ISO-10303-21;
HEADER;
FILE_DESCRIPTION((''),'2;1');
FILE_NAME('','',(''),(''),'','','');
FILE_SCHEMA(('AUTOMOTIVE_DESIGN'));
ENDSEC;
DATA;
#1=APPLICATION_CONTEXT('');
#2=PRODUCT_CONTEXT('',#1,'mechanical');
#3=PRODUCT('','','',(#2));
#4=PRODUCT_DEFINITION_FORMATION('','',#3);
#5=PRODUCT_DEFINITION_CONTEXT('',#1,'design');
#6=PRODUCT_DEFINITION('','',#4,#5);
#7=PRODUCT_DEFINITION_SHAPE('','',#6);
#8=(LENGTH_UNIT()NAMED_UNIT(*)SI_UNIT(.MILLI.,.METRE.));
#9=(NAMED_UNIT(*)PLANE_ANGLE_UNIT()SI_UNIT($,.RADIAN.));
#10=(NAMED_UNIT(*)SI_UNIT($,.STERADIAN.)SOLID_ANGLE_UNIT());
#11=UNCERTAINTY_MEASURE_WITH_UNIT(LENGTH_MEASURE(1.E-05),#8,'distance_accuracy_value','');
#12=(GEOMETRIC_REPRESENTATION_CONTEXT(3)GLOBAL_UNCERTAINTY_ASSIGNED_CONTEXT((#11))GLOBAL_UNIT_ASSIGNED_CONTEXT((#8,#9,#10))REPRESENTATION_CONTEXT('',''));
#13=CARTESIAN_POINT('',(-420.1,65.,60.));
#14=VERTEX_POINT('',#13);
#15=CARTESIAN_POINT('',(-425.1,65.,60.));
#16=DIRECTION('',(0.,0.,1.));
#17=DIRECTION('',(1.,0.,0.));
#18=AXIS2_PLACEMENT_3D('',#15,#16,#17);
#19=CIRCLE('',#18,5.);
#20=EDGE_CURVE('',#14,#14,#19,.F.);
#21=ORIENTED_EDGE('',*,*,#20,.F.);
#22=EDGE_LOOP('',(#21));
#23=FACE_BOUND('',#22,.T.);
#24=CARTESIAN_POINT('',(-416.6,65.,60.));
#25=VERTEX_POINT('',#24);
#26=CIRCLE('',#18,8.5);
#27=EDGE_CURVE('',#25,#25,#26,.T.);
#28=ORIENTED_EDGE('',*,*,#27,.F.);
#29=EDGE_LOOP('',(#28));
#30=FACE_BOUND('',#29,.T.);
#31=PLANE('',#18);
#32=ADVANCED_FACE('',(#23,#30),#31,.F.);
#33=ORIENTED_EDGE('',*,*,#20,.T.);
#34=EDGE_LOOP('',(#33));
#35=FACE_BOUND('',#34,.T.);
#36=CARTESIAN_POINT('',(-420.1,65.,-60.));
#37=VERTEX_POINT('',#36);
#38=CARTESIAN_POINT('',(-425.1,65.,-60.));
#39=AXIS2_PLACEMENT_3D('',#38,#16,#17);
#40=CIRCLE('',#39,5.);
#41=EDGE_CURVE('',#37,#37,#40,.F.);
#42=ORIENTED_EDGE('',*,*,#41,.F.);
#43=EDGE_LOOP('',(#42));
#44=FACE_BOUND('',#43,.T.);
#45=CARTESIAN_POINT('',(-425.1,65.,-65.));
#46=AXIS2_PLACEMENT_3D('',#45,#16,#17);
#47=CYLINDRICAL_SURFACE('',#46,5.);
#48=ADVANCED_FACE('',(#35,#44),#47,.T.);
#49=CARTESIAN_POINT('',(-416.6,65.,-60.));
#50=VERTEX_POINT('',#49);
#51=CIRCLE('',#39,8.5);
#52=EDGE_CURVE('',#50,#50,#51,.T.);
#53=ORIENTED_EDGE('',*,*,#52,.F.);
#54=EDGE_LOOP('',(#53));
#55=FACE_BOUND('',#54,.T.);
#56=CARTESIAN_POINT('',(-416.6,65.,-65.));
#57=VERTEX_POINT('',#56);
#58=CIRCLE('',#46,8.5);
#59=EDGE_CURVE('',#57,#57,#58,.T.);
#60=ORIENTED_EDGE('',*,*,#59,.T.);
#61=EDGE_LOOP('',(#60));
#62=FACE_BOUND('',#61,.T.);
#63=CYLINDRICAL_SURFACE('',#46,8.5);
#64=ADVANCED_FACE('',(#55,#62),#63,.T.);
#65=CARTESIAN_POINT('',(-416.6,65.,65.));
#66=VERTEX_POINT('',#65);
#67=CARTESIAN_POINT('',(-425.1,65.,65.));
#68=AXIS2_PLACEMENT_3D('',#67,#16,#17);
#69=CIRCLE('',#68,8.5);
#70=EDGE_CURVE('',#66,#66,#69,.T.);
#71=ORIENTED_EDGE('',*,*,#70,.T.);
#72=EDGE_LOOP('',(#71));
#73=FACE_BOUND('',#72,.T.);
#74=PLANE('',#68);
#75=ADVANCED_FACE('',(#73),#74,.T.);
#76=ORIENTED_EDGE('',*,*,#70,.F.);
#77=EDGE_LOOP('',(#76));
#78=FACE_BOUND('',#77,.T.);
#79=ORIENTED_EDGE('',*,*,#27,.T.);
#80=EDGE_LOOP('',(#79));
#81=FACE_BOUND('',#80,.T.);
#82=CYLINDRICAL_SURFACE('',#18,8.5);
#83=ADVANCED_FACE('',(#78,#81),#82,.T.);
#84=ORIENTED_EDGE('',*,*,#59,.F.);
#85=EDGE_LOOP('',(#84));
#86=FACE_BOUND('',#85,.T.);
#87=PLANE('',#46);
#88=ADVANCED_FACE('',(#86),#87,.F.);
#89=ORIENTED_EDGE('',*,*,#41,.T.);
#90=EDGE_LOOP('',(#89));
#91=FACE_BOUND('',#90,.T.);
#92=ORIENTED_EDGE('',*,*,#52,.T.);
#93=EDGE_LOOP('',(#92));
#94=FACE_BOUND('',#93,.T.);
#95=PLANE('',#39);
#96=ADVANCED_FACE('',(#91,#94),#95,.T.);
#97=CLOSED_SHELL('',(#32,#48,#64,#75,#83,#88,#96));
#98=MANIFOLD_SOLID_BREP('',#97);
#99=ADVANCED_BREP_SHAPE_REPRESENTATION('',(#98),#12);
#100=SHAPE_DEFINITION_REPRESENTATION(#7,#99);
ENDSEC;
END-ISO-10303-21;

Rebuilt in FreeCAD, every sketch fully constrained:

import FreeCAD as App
import Part
import Sketcher

V = App.Vector
Q = App.Units.Quantity

doc = App.newDocument("Part")
body = doc.addObject("PartDesign::Body", "Body")

# Sketch on XY plane
sketch1 = doc.addObject("Sketcher::SketchObject", "Sketch")
body.addObject(sketch1)
sketch1.AttachmentSupport = (doc.XY_Plane, [""])
sketch1.MapMode = "FlatFace"
sketch1.AttachmentOffset = App.Placement(V(0, 0, -65), App.Rotation())
sketch1.addGeometry(Part.Circle(V(-425.1, 65, 0), V(0, 0, 1), 5), False)
sketch1.addConstraint([
    Sketcher.Constraint("Diameter", 0, Q("10 mm")),
    Sketcher.Constraint("DistanceY", -1, 1, 0, 3, Q("65 mm")),
    Sketcher.Constraint("DistanceX", 0, 3, -1, 1, Q("425.1 mm")),
])

# Sketch on XZ plane
sketch2 = doc.addObject("Sketcher::SketchObject", "Sketch001")
body.addObject(sketch2)
sketch2.AttachmentSupport = (doc.XZ_Plane, [""])
sketch2.MapMode = "FlatFace"
sketch2.AttachmentOffset = App.Placement(V(0, 0, -65), App.Rotation())
sketch2.addGeometry(Part.LineSegment(V(-425.1, -65, 0), V(-425.1, 65, 0)), False)
sketch2.addConstraint([
    Sketcher.Constraint("Vertical", 0),
    Sketcher.Constraint("DistanceY", 0, 1, 0, 2, Q("130 mm")),
    Sketcher.Constraint("DistanceY", 0, 1, -1, 1, Q("65 mm")),
    Sketcher.Constraint("DistanceX", 0, 1, -1, 1, Q("425.1 mm")),
])
doc.recompute()

additivepipe = doc.addObject("PartDesign::AdditivePipe", "AdditivePipe")
body.addObject(additivepipe)
additivepipe.Profile = sketch1
additivepipe.Spine = (sketch2, ["Edge1"])

# Sketch on XY plane
sketch3 = doc.addObject("Sketcher::SketchObject", "Sketch002")
body.addObject(sketch3)
sketch3.AttachmentSupport = (doc.XY_Plane, [""])
sketch3.MapMode = "FlatFace"
sketch3.AttachmentOffset = App.Placement(V(0, 0, 60), App.Rotation())
sketch3.addGeometry(Part.Circle(V(-425.1, 65, 0), V(0, 0, 1), 8.5), False)
sketch3.addConstraint([
    Sketcher.Constraint("Diameter", 0, Q("17 mm")),
    Sketcher.Constraint("DistanceY", -1, 1, 0, 3, Q("65 mm")),
    Sketcher.Constraint("DistanceX", 0, 3, -1, 1, Q("425.1 mm")),
])

# Sketch on XZ plane
sketch4 = doc.addObject("Sketcher::SketchObject", "Sketch003")
body.addObject(sketch4)
sketch4.AttachmentSupport = (doc.XZ_Plane, [""])
sketch4.MapMode = "FlatFace"
sketch4.AttachmentOffset = App.Placement(V(0, 0, -65), App.Rotation())
sketch4.addGeometry(Part.LineSegment(V(-425.1, 60, 0), V(-425.1, 65, 0)), False)
sketch4.addConstraint([
    Sketcher.Constraint("Vertical", 0),
    Sketcher.Constraint("DistanceY", 0, 1, 0, 2, Q("5 mm")),
    Sketcher.Constraint("DistanceY", -1, 1, 0, 1, Q("60 mm")),
    Sketcher.Constraint("DistanceX", 0, 1, -1, 1, Q("425.1 mm")),
])
doc.recompute()

additivepipe2 = doc.addObject("PartDesign::AdditivePipe", "AdditivePipe001")
body.addObject(additivepipe2)
additivepipe2.Profile = sketch3
additivepipe2.Spine = (sketch4, ["Edge1"])

# Sketch on XY plane
sketch5 = doc.addObject("Sketcher::SketchObject", "Sketch004")
body.addObject(sketch5)
sketch5.AttachmentSupport = (doc.XY_Plane, [""])
sketch5.MapMode = "FlatFace"
sketch5.AttachmentOffset = App.Placement(V(0, 0, -65), App.Rotation())
sketch5.addGeometry(Part.Circle(V(-425.1, 65, 0), V(0, 0, 1), 8.5), False)
sketch5.addConstraint([
    Sketcher.Constraint("Diameter", 0, Q("17 mm")),
    Sketcher.Constraint("DistanceY", -1, 1, 0, 3, Q("65 mm")),
    Sketcher.Constraint("DistanceX", 0, 3, -1, 1, Q("425.1 mm")),
])

# Sketch on XZ plane
sketch6 = doc.addObject("Sketcher::SketchObject", "Sketch005")
body.addObject(sketch6)
sketch6.AttachmentSupport = (doc.XZ_Plane, [""])
sketch6.MapMode = "FlatFace"
sketch6.AttachmentOffset = App.Placement(V(0, 0, -65), App.Rotation())
sketch6.addGeometry(Part.LineSegment(V(-425.1, -65, 0), V(-425.1, -60, 0)), False)
sketch6.addConstraint([
    Sketcher.Constraint("Vertical", 0),
    Sketcher.Constraint("DistanceY", 0, 1, 0, 2, Q("5 mm")),
    Sketcher.Constraint("DistanceY", 0, 1, -1, 1, Q("65 mm")),
    Sketcher.Constraint("DistanceX", 0, 1, -1, 1, Q("425.1 mm")),
])
doc.recompute()

additivepipe3 = doc.addObject("PartDesign::AdditivePipe", "AdditivePipe002")
body.addObject(additivepipe3)
additivepipe3.Profile = sketch5
additivepipe3.Spine = (sketch6, ["Edge1"])

doc.recompute()
